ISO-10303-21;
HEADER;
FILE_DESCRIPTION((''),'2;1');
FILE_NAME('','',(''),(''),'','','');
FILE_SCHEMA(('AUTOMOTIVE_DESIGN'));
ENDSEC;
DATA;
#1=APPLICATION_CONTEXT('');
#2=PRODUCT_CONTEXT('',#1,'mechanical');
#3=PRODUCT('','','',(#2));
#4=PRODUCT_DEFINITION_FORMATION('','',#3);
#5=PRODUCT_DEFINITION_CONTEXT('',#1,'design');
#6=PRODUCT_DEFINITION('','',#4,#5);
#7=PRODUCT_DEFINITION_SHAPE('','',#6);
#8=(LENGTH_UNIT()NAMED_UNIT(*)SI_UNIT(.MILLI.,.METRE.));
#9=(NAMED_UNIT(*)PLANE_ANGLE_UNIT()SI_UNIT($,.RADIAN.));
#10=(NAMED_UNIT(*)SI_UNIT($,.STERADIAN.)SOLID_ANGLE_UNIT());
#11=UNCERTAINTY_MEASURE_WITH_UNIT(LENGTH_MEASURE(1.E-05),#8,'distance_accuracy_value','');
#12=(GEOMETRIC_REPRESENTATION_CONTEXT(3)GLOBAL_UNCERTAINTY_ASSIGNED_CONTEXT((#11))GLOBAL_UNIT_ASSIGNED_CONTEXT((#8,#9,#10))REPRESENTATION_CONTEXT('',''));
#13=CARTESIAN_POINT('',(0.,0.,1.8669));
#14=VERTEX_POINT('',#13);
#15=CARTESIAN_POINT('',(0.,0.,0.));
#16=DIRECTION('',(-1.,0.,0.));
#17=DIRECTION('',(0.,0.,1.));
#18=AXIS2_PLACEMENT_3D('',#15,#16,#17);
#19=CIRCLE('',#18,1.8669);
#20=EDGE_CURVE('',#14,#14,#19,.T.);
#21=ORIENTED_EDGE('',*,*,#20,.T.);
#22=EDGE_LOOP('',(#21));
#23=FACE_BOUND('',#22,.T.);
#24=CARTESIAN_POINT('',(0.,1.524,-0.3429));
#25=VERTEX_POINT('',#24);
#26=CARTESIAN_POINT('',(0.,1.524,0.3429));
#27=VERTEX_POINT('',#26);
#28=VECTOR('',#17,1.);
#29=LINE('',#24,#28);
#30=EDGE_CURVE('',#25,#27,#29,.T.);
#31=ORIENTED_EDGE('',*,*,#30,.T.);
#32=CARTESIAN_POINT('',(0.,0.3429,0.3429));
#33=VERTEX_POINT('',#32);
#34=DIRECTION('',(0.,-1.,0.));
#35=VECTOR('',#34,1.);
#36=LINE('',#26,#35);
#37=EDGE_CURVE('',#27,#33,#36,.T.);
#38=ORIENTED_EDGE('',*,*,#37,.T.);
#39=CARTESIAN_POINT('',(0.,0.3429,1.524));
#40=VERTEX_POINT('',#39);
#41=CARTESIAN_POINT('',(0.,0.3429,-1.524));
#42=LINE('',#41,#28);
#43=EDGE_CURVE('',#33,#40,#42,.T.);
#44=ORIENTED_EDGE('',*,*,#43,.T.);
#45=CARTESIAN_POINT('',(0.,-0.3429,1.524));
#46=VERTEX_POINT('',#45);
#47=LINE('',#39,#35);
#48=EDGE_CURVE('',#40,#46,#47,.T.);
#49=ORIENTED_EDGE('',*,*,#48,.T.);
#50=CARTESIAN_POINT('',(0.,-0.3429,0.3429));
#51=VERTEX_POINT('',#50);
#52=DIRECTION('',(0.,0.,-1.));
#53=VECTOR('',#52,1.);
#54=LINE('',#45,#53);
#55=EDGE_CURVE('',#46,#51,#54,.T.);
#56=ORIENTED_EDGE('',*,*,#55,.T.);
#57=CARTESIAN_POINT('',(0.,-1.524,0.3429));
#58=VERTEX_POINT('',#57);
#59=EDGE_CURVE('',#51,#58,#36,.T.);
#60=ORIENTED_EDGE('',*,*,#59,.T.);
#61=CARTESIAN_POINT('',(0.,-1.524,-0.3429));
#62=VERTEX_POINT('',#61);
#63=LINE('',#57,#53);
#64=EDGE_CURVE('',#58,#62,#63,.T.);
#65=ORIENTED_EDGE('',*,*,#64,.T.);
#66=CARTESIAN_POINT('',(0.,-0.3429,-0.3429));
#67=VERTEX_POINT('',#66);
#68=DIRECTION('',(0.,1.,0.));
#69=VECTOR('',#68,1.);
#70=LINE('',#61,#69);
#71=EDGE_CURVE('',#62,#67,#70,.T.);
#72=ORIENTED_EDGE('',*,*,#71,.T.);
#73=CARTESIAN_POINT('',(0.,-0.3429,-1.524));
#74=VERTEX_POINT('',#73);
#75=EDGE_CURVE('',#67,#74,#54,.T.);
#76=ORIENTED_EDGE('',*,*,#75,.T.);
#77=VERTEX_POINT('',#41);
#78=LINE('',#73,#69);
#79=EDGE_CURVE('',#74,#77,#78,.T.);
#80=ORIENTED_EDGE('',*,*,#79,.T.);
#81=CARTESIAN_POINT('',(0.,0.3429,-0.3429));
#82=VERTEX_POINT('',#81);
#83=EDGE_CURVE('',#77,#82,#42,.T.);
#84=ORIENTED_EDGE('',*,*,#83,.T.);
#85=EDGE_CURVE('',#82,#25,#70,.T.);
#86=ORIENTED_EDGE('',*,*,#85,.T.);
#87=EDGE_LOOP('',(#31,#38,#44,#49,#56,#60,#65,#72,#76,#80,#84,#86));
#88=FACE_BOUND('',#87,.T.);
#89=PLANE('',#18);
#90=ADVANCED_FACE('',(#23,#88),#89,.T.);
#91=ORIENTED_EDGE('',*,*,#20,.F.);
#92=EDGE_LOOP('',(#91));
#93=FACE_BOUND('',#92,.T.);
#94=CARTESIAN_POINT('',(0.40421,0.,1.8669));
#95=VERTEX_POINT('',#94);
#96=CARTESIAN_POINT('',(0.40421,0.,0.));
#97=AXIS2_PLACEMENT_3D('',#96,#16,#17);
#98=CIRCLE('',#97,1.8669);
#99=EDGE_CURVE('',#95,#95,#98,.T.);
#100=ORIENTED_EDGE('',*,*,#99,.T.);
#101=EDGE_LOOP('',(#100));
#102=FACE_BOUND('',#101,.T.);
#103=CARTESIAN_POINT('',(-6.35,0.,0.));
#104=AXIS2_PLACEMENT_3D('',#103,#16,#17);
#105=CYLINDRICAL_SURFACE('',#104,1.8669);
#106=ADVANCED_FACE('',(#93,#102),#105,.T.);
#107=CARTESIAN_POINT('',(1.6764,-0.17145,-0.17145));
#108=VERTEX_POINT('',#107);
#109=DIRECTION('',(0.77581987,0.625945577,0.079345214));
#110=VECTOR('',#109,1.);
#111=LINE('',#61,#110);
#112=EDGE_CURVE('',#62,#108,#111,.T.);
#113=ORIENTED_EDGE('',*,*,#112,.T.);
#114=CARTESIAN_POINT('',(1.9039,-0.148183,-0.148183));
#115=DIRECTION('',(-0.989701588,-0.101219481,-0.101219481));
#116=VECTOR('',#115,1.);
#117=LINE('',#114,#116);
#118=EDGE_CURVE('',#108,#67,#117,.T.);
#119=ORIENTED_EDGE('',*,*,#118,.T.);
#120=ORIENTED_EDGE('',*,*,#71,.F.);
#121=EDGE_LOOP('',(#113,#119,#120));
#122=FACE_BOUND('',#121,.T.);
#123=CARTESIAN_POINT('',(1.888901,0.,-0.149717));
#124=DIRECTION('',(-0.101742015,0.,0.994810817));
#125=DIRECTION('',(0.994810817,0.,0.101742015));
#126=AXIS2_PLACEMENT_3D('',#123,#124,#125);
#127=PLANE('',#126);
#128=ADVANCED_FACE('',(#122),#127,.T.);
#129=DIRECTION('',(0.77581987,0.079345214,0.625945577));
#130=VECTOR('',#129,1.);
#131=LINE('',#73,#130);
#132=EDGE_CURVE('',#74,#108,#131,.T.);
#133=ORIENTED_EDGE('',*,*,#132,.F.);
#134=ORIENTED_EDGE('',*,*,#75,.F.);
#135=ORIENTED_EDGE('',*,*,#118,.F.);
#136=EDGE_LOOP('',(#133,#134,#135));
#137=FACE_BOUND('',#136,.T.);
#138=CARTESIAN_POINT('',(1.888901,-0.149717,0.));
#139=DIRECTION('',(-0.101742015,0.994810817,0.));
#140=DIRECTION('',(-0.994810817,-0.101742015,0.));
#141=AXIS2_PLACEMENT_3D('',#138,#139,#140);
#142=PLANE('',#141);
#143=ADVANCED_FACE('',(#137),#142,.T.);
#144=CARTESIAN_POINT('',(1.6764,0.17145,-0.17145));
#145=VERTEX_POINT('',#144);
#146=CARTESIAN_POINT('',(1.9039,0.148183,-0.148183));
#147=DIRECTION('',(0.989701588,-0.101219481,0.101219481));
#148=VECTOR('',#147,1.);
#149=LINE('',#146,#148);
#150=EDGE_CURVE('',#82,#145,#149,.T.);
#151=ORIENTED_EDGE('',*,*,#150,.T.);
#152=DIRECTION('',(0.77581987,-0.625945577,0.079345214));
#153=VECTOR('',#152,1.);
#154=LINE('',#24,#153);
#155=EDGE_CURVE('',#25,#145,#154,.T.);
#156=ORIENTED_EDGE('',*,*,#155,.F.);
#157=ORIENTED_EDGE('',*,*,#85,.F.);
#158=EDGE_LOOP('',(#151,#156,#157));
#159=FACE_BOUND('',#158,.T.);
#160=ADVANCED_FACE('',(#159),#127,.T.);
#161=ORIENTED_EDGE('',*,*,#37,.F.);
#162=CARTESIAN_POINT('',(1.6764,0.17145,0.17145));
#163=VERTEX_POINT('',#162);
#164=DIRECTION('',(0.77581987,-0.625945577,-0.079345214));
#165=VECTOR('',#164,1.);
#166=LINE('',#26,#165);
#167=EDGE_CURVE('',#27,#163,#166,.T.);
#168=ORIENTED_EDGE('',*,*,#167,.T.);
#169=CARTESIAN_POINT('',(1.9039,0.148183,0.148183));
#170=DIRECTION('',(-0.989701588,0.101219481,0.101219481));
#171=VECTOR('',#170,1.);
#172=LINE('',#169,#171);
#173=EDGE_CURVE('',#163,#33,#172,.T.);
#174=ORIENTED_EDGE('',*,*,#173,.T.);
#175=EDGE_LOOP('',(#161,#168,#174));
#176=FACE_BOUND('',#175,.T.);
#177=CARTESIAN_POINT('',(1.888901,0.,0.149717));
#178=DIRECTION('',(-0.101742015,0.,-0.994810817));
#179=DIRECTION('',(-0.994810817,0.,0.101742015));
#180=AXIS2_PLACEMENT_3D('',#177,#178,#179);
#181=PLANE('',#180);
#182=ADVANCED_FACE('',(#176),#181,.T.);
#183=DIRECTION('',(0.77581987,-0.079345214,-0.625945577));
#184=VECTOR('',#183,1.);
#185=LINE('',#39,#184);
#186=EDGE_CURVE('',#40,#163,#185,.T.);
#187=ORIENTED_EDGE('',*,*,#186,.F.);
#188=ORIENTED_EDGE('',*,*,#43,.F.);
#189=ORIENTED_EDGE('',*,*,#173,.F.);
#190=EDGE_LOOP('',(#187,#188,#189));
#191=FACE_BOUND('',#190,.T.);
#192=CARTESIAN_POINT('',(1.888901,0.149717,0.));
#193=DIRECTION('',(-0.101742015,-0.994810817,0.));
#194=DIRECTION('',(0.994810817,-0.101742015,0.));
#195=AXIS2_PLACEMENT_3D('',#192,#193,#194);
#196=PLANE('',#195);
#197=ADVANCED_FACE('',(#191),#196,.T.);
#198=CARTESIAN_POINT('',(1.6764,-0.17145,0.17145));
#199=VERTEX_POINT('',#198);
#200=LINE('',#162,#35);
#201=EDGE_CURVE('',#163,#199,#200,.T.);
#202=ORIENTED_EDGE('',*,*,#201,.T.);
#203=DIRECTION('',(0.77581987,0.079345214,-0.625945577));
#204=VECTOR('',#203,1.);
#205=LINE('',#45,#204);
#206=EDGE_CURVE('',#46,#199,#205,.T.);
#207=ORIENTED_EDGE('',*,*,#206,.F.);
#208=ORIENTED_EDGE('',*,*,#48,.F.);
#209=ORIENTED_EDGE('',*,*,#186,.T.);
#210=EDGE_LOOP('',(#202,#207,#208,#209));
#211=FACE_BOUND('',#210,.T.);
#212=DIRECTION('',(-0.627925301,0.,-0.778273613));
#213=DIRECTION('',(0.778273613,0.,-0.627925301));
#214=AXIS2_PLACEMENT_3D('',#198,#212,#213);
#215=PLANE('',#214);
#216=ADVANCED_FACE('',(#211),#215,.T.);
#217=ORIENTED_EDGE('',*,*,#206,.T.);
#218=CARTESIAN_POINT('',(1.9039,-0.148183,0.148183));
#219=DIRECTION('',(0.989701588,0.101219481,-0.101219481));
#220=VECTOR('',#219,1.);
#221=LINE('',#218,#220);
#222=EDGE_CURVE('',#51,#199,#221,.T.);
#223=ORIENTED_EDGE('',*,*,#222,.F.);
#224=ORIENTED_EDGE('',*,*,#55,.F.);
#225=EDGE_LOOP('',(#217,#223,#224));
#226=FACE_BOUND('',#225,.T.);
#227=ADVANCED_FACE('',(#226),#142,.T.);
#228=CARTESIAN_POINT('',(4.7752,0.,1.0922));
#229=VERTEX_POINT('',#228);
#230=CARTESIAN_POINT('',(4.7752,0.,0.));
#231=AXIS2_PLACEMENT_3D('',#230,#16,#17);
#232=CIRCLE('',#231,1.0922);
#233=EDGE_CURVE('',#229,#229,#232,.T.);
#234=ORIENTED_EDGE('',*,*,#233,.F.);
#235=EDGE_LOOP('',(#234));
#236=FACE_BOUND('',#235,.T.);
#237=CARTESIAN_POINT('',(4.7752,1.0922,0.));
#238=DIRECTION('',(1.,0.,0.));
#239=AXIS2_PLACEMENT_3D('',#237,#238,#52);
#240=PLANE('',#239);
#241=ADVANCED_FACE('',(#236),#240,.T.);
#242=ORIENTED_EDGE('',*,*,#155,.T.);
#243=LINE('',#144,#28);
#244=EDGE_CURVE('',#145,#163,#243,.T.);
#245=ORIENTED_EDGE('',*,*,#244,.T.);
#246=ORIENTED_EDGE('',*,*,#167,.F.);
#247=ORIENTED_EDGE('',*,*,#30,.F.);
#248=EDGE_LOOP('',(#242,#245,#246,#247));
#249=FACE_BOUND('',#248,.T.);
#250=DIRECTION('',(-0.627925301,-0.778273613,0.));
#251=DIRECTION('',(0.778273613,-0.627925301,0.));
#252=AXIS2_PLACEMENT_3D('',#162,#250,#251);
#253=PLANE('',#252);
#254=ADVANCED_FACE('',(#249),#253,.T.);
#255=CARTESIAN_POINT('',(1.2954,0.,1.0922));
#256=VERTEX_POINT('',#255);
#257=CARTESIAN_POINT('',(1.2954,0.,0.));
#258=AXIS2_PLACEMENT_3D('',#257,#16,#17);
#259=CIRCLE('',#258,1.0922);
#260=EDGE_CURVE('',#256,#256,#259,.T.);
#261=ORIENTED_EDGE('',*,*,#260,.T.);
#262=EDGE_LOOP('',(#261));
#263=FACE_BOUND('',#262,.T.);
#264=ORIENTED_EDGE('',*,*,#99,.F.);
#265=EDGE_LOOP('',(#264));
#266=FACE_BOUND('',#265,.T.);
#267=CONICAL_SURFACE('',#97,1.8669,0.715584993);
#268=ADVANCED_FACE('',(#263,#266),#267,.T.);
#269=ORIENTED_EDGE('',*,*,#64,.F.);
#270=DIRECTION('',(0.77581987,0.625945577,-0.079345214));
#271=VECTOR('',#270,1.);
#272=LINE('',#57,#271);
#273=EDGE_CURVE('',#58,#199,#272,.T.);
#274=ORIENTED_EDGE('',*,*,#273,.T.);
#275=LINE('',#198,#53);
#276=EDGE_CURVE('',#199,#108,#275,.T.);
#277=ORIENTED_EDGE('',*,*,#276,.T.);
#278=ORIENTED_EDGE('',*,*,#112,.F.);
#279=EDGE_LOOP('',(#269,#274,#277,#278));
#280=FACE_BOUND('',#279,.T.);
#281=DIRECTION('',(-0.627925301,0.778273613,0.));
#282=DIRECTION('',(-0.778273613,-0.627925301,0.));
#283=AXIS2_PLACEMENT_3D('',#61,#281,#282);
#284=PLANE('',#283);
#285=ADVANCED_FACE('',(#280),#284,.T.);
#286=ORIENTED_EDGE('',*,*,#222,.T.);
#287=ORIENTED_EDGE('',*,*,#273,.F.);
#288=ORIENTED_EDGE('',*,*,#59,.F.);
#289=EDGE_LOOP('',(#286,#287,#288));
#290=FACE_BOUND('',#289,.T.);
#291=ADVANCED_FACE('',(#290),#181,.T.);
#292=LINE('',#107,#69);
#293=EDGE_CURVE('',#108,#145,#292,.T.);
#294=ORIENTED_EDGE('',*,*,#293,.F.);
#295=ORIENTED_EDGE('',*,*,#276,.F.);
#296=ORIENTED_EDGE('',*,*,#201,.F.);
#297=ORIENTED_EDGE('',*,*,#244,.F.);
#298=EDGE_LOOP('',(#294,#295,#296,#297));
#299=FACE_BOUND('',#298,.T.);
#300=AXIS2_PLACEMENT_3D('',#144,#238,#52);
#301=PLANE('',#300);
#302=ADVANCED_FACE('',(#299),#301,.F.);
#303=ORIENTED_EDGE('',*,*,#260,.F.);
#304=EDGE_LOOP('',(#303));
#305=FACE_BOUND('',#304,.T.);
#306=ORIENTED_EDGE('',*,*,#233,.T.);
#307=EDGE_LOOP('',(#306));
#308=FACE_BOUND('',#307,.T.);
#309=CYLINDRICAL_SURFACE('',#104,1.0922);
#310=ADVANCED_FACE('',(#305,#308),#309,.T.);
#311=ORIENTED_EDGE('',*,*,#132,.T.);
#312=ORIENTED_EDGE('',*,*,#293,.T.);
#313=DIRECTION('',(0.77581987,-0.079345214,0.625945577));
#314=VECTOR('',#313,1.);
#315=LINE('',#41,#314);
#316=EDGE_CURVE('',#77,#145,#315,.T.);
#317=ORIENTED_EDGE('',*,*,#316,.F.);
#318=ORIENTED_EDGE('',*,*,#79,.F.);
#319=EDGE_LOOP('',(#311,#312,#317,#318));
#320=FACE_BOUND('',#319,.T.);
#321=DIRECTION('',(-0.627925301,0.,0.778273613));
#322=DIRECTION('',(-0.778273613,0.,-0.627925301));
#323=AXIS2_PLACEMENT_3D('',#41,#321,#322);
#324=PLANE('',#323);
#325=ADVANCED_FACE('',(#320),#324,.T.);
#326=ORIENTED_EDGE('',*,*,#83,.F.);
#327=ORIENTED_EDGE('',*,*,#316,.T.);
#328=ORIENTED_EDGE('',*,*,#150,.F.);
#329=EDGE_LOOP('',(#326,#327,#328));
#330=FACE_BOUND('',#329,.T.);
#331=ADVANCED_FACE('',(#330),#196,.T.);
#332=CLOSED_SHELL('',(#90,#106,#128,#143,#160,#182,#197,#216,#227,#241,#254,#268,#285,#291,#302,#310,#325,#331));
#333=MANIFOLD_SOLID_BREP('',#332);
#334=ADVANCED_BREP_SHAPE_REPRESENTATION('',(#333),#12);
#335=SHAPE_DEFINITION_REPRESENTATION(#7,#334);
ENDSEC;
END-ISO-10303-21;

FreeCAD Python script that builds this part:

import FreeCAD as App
import Part
import Sketcher

V = App.Vector
Q = App.Units.Quantity

doc = App.newDocument("Part")
params = doc.addObject("Spreadsheet::Sheet", "Params")
for row, (alias, value) in enumerate([
    ("sketch1_width", "0.188 in"),
    ("sketch1_width2", "0.137 in"),
    ("sketch1_height", "0.043 in"),
    ("revolution_angle", "360 deg"),
    ("sketch2_width", "0.12 in"),
    ("sketch2_height", "0.027 in"),
], start=1):
    params.set(f"A{row}", alias)
    params.set(f"B{row}", "=" + value)
    params.setAlias(f"B{row}", alias)

body = doc.addObject("PartDesign::Body", "Body")

# Sketch on XY plane
sketch1 = body.newObject("Sketcher::SketchObject", "Sketch")
sketch1.AttachmentSupport = (doc.getObject("XY_Plane"), [""])
sketch1.MapMode = "FlatFace"
sketch1.addGeometry([
    Part.LineSegment(V(0, 1.8669, 0), V(0, 0, 0)),  # 0
    Part.LineSegment(V(0, 0, 0), V(4.7752, 0, 0)),  # 1
    Part.LineSegment(V(4.7752, 0, 0), V(4.7752, 1.0922, 0)),  # 2
    Part.LineSegment(V(4.7752, 1.0922, 0), V(1.2954, 1.0922, 0)),  # 3
    Part.LineSegment(V(1.2954, 1.0922, 0), V(0.40421, 1.8669, 0)),  # 4
    Part.LineSegment(V(0.40421, 1.8669, 0), V(0, 1.8669, 0)),  # 5
], False)
sketch1.addConstraint([
    Sketcher.Constraint("Coincident", 0, 2, 1, 1),
    Sketcher.Constraint("Coincident", 1, 2, 2, 1),
    Sketcher.Constraint("Coincident", 2, 2, 3, 1),
    Sketcher.Constraint("Coincident", 3, 2, 4, 1),
    Sketcher.Constraint("Coincident", 4, 2, 5, 1),
    Sketcher.Constraint("Coincident", 5, 2, 0, 1),
    Sketcher.Constraint("Vertical", 0),
    Sketcher.Constraint("Horizontal", 1),
    Sketcher.Constraint("Vertical", 2),
    Sketcher.Constraint("Horizontal", 3),
    Sketcher.Constraint("Horizontal", 5),
    Sketcher.Constraint("Coincident", 0, 2, -1, 1),
    Sketcher.Constraint("Angle", 4, Q("139 deg")),
    Sketcher.Constraint("DistanceX", 1, 1, 1, 2, Q("0.188 in")),
    Sketcher.Constraint("DistanceX", 3, 2, 3, 1, Q("0.137 in")),
    Sketcher.Constraint("DistanceY", 2, 1, 2, 2, Q("0.043 in")),
    Sketcher.Constraint("DistanceY", 0, 2, 0, 1, Q("0.0735 in")),
])
sketch1.setExpression("Constraints[13]", "Params.sketch1_width")
sketch1.setExpression("Constraints[14]", "Params.sketch1_width2")
sketch1.setExpression("Constraints[15]", "Params.sketch1_height")
revolution = body.newObject("PartDesign::Revolution", "Revolution")
revolution.Profile = sketch1
revolution.ReferenceAxis = (sketch1, ["H_Axis"])
revolution.setExpression("Angle", "Params.revolution_angle")

# Sketch on YZ plane
sketch2 = body.newObject("Sketcher::SketchObject", "Sketch001")
sketch2.AttachmentSupport = (doc.getObject("YZ_Plane"), [""])
sketch2.MapMode = "FlatFace"
sketch2.addGeometry([
    Part.LineSegment(V(1.524, 0.3429, 0), V(1.524, -0.3429, 0)),
    Part.LineSegment(V(1.524, -0.3429, 0), V(-1.524, -0.3429, 0)),
    Part.LineSegment(V(-1.524, -0.3429, 0), V(-1.524, 0.3429, 0)),
    Part.LineSegment(V(-1.524, 0.3429, 0), V(1.524, 0.3429, 0)),
], False)
sketch2.addConstraint([
    Sketcher.Constraint("Coincident", 0, 2, 1, 1),
    Sketcher.Constraint("Coincident", 1, 2, 2, 1),
    Sketcher.Constraint("Coincident", 2, 2, 3, 1),
    Sketcher.Constraint("Coincident", 3, 2, 0, 1),
    Sketcher.Constraint("Vertical", 0),
    Sketcher.Constraint("Horizontal", 1),
    Sketcher.Constraint("Vertical", 2),
    Sketcher.Constraint("Horizontal", 3),
    Sketcher.Constraint("Symmetric", 0, 2, 2, 2, -1, 1),
    Sketcher.Constraint("DistanceX", 1, 2, 1, 1, Q("0.12 in")),
    Sketcher.Constraint("DistanceY", 0, 2, 0, 1, Q("0.027 in")),
])
sketch2.setExpression("Constraints[9]", "Params.sketch2_width")
sketch2.setExpression("Constraints[10]", "Params.sketch2_height")

# Sketch on YZ plane
sketch3 = body.newObject("Sketcher::SketchObject", "Sketch002")
sketch3.AttachmentSupport = (doc.getObject("YZ_Plane"), [""])
sketch3.MapMode = "FlatFace"
sketch3.AttachmentOffset = App.Placement(V(0, 0, 0.066 * 25.4), App.Rotation())
sketch3.addGeometry([
    Part.LineSegment(V(0.17145, 0.17145, 0), V(0.17145, -0.17145, 0)),
    Part.LineSegment(V(0.17145, -0.17145, 0), V(-0.17145, -0.17145, 0)),
    Part.LineSegment(V(-0.17145, -0.17145, 0), V(-0.17145, 0.17145, 0)),
    Part.LineSegment(V(-0.17145, 0.17145, 0), V(0.17145, 0.17145, 0)),
], False)
sketch3.addConstraint([
    Sketcher.Constraint("Coincident", 0, 2, 1, 1),
    Sketcher.Constraint("Coincident", 1, 2, 2, 1),
    Sketcher.Constraint("Coincident", 2, 2, 3, 1),
    Sketcher.Constraint("Coincident", 3, 2, 0, 1),
    Sketcher.Constraint("Vertical", 0),
    Sketcher.Constraint("Horizontal", 1),
    Sketcher.Constraint("Vertical", 2),
    Sketcher.Constraint("Horizontal", 3),
    Sketcher.Constraint("Symmetric", 0, 2, 2, 2, -1, 1),
    Sketcher.Constraint("Equal", 3, 0),
    Sketcher.Constraint("DistanceX", 1, 2, 1, 1, Q("0.0135 in")),
])

subtractiveloft = body.newObject("PartDesign::SubtractiveLoft", "SubtractiveLoft")
subtractiveloft.Profile = sketch2
subtractiveloft.Sections = [sketch3]
doc.recompute()

polarpattern = body.newObject("PartDesign::PolarPattern", "PolarPattern")
polarpattern.Originals = [subtractiveloft]
polarpattern.Axis = (doc.getObject("X_Axis"), [""])
polarpattern.Angle = 90
polarpattern.Occurrences = 2
body.Tip = polarpattern

doc.recompute()
